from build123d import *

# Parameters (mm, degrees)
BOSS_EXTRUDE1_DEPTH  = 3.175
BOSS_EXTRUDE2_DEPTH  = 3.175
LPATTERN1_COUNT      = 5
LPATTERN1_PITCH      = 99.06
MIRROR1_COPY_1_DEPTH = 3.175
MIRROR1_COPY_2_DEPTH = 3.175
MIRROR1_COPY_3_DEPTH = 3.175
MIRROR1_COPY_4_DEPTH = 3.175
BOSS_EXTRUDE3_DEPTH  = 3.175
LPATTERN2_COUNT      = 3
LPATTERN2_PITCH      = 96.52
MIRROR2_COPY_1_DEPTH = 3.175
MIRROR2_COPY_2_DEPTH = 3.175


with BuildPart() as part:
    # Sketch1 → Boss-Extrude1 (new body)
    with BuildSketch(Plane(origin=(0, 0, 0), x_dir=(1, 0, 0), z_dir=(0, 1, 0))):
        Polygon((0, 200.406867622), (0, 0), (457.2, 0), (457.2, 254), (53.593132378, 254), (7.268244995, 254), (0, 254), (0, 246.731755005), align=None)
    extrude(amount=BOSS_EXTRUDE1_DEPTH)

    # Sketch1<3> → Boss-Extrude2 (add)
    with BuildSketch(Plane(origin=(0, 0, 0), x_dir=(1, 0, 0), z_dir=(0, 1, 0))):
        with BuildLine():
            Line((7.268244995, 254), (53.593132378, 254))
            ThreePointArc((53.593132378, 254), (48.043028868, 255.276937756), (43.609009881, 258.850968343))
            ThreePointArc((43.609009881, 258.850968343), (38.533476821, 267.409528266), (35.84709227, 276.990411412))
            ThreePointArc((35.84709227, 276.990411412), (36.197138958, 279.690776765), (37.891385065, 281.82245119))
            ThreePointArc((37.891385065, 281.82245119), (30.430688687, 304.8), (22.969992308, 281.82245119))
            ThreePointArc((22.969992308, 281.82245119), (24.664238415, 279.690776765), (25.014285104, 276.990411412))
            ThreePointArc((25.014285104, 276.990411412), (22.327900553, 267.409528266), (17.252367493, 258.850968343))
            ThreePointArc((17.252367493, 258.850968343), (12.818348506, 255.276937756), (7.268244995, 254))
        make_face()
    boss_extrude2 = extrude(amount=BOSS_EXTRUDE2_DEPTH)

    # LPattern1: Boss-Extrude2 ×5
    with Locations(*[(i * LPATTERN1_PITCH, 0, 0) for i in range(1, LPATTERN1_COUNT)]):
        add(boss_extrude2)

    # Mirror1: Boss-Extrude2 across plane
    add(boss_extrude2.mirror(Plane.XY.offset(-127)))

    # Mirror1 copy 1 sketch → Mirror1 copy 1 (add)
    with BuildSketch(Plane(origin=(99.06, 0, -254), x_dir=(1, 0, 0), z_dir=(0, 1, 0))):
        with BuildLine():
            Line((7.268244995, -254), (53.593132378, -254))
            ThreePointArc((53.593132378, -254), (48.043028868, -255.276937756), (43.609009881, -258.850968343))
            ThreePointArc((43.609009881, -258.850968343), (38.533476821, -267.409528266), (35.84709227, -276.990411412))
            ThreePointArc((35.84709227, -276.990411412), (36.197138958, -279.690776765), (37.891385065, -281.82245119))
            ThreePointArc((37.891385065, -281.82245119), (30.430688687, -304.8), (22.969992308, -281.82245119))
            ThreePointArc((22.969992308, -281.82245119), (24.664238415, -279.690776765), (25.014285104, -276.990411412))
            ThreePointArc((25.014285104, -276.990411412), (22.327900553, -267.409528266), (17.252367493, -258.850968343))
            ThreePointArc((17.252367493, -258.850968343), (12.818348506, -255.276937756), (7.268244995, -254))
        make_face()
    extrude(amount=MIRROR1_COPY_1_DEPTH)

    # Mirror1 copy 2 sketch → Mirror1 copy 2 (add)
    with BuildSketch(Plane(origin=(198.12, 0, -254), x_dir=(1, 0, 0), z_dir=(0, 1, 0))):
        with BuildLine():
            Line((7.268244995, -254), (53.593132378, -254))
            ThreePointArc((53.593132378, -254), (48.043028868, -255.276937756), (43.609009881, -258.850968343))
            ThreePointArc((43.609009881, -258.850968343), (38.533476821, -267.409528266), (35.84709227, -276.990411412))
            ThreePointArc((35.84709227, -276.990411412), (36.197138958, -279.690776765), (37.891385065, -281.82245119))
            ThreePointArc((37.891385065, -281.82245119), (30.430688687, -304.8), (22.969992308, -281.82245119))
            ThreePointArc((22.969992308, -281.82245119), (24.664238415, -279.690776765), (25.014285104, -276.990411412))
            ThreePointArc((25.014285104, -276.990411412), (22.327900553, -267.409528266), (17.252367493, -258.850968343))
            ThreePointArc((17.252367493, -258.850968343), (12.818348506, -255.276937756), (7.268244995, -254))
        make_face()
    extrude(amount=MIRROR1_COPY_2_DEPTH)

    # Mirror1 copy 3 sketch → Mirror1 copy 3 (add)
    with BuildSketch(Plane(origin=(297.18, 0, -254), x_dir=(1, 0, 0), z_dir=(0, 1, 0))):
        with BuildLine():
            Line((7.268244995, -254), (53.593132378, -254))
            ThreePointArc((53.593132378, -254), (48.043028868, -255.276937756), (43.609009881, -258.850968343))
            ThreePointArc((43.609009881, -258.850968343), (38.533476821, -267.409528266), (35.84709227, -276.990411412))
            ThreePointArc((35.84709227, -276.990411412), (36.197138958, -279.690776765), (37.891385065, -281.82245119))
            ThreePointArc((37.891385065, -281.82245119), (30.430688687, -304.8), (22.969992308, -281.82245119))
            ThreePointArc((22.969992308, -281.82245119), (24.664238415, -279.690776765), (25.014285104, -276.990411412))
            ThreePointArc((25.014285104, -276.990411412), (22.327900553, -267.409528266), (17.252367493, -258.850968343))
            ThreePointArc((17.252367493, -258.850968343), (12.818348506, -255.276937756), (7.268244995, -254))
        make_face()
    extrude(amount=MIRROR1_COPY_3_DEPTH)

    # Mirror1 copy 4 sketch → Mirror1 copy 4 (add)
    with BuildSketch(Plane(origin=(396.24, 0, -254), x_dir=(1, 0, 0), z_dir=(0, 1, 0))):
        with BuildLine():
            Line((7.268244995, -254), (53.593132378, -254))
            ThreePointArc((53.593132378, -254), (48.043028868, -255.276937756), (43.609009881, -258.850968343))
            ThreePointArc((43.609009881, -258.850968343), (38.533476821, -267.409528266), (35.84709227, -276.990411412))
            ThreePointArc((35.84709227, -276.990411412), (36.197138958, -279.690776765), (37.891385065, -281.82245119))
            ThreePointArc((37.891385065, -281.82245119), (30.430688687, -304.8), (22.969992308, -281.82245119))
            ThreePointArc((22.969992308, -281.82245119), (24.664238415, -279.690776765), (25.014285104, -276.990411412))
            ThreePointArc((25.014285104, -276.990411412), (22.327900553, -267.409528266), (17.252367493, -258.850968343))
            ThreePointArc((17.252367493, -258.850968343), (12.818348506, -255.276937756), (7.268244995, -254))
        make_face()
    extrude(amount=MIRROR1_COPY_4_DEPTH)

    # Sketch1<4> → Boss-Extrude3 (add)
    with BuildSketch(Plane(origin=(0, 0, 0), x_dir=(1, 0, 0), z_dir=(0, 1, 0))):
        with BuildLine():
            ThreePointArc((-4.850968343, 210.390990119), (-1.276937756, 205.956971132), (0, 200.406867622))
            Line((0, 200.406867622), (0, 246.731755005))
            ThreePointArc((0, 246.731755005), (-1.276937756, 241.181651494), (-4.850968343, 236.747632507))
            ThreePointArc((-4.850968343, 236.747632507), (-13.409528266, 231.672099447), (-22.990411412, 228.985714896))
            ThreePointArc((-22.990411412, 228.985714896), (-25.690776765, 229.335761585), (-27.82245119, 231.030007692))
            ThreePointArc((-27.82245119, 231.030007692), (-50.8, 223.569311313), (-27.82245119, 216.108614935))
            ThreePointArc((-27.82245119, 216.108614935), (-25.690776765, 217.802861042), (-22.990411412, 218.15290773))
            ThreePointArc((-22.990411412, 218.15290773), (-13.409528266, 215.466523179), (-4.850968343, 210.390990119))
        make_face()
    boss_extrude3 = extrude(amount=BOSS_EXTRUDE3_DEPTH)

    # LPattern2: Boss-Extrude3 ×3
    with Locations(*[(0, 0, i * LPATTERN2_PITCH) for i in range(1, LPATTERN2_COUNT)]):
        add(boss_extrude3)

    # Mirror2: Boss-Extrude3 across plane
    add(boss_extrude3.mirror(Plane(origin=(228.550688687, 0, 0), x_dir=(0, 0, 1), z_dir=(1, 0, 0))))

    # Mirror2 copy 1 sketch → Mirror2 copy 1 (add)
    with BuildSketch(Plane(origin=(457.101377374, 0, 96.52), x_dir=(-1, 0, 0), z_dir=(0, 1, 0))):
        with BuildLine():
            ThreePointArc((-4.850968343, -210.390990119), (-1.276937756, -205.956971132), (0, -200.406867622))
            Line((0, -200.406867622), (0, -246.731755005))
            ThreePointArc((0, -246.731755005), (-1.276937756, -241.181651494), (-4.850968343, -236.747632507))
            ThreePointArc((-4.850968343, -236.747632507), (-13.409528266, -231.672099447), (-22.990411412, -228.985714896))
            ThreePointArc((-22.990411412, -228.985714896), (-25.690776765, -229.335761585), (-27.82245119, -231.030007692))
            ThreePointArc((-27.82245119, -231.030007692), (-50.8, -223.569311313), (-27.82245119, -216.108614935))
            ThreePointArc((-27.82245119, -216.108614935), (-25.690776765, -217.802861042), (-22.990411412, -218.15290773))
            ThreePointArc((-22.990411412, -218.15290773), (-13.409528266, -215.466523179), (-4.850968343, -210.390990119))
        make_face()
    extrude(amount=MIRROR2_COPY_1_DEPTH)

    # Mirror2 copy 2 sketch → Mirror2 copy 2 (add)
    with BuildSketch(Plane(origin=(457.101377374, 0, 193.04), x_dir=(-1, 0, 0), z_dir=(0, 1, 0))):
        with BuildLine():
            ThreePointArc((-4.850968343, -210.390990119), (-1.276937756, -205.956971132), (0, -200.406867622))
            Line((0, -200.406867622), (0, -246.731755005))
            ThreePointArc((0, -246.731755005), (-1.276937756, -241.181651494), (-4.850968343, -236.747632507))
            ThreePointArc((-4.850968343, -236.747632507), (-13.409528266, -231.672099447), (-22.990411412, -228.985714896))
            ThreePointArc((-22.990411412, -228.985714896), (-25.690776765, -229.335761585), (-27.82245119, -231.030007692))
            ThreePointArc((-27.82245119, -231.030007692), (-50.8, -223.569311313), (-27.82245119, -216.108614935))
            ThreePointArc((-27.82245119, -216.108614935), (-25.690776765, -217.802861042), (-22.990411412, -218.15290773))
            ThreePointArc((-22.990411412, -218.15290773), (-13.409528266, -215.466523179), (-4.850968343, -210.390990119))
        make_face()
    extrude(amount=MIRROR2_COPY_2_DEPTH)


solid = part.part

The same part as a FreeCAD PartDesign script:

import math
import FreeCAD as App
import Part
import Sketcher

V = App.Vector
Q = App.Units.Quantity

doc = App.newDocument("Part")
body = doc.addObject("PartDesign::Body", "Body")

sketch1 = doc.addObject("Sketcher::SketchObject", "Sketch")
body.addObject(sketch1)
sketch1.AttachmentSupport = (doc.XZ_Plane, [""])
sketch1.MapMode = "FlatFace"
sketch1.addGeometry([
    Part.LineSegment(V(0, 0, 0), V(457, 0, 0)),
    Part.LineSegment(V(457, 0, 0), V(457, -254, 0)),
    Part.LineSegment(V(457, -254, 0), V(0, -254, 0)),
    Part.LineSegment(V(0, -254, 0), V(0, 0, 0)),
], False)
sketch1.addConstraint([
    Sketcher.Constraint("Coincident", 0, 2, 1, 1),
    Sketcher.Constraint("Coincident", 1, 2, 2, 1),
    Sketcher.Constraint("Coincident", 2, 2, 3, 1),
    Sketcher.Constraint("Coincident", 3, 2, 0, 1),
    Sketcher.Constraint("Horizontal", 0),
    Sketcher.Constraint("Vertical", 1),
    Sketcher.Constraint("Horizontal", 2),
    Sketcher.Constraint("Vertical", 3),
    Sketcher.Constraint("Coincident", 3, 2, -1, 1),
    Sketcher.Constraint("DistanceX", 0, 1, 0, 2, Q("18 in")),
    Sketcher.Constraint("DistanceY", 1, 2, 1, 1, Q("10 in")),
])
pad1 = doc.addObject("PartDesign::Pad", "Pad")
body.addObject(pad1)
pad1.Profile = sketch1
pad1.Length = Q("0.125 in")
pad1.Reversed = True

sketch2 = doc.addObject("Sketcher::SketchObject", "Sketch001")
body.addObject(sketch2)
sketch2.AttachmentSupport = (doc.XZ_Plane, [""])
sketch2.MapMode = "FlatFace"
sketch2.addGeometry([
    Part.LineSegment(V(7, -254, 0), V(54, -254, 0)),
    Part.ArcOfCircle(Part.Circle(V(54, -267, 0), V(0, 0, 1), 13), math.radians(90), math.radians(142)),
    Part.ArcOfCircle(Part.Circle(V(74, -282, 0), V(0, 0, 1), 38), math.radians(142), math.radians(172)),
    Part.ArcOfCircle(Part.Circle(V(41, -278, 0), V(0, 0, 1), 5), math.radians(172), math.radians(234)),
    Part.ArcOfCircle(Part.Circle(V(30, -292, 0), V(0, 0, 1), 13), math.radians(126), math.radians(414)),
    Part.ArcOfCircle(Part.Circle(V(20, -278, 0), V(0, 0, 1), 5), math.radians(-54), math.radians(8)),
    Part.ArcOfCircle(Part.Circle(V(-13, -282, 0), V(0, 0, 1), 38), math.radians(8), math.radians(38)),
    Part.ArcOfCircle(Part.Circle(V(7, -267, 0), V(0, 0, 1), 13), math.radians(38), math.radians(90)),
], False)
sketch2.addConstraint([
    Sketcher.Constraint("Tangent", 0, 2, 1, 1),
    Sketcher.Constraint("Tangent", 1, 2, 2, 1),
    Sketcher.Constraint("Tangent", 2, 2, 3, 1),
    Sketcher.Constraint("Tangent", 3, 2, 4, 2),
    Sketcher.Constraint("Tangent", 4, 1, 5, 1),
    Sketcher.Constraint("Tangent", 5, 2, 6, 1),
    Sketcher.Constraint("Tangent", 6, 2, 7, 1),
    Sketcher.Constraint("Tangent", 7, 2, 0, 1),
    Sketcher.Constraint("Horizontal", 0),
    Sketcher.Constraint("Equal", 1, 4),
    Sketcher.Constraint("Equal", 3, 5),
    Sketcher.Constraint("Equal", 2, 6),
    Sketcher.Constraint("Equal", 4, 7),
    Sketcher.Constraint("Horizontal", 3, 3, 5, 3),
    Sketcher.Constraint("Horizontal", 2, 3, 6, 3),
    Sketcher.Constraint("Radius", 1, Q("0.5 in")),
    Sketcher.Constraint("Radius", 2, Q("1.5 in")),
    Sketcher.Constraint("Radius", 3, Q("0.2 in")),
    Sketcher.Constraint("DistanceY", 0, 2, -1, 1, Q("10 in")),
    Sketcher.Constraint("DistanceY", 4, 3, 1, 3, Q("1 in")),
    Sketcher.Constraint("DistanceX", 6, 3, -1, 1, Q("0.5 in")),
    Sketcher.Constraint("DistanceX", 4, 1, 2, 2, 12.8771),
    Sketcher.Constraint("DistanceX", 0, 1, 0, 2, 46.324887),
])
pad2 = doc.addObject("PartDesign::Pad", "Pad001")
body.addObject(pad2)
pad2.Profile = sketch2
pad2.Length = Q("0.125 in")
pad2.Reversed = True
doc.recompute()

linearpattern = doc.addObject("PartDesign::LinearPattern", "LinearPattern")
body.addObject(linearpattern)
linearpattern.Originals = [pad2]
linearpattern.Direction = (doc.X_Axis, [""])
linearpattern.Mode = "offset"
linearpattern.Offset = Q("3.9 in")
linearpattern.Occurrences = 5
body.Tip = linearpattern
doc.recompute()

datumplane = doc.addObject("PartDesign::Plane", "DatumPlane")
body.addObject(datumplane)
datumplane.AttachmentSupport = (doc.XY_Plane, [""])
datumplane.MapMode = "FlatFace"
datumplane.AttachmentOffset = App.Placement(V(0, 0, -5 * 25.4), App.Rotation())
mirrored = doc.addObject("PartDesign::Mirrored", "Mirrored")
body.addObject(mirrored)
mirrored.Originals = [pad2]
mirrored.MirrorPlane = (datumplane, [""])
body.Tip = mirrored

sketch3 = doc.addObject("Sketcher::SketchObject", "Sketch002")
body.addObject(sketch3)
sketch3.AttachmentSupport = (doc.XZ_Plane, [""])
sketch3.MapMode = "FlatFace"
sketch3.addGeometry([
    Part.LineSegment(V(153, 0, 0), V(106, 0, 0)),
    Part.ArcOfCircle(Part.Circle(V(106, 13, 0), V(0, 0, 1), 13), math.radians(-90), math.radians(-38)),
    Part.ArcOfCircle(Part.Circle(V(86, 28, 0), V(0, 0, 1), 38), math.radians(-38), math.radians(-8)),
    Part.ArcOfCircle(Part.Circle(V(119, 24, 0), V(0, 0, 1), 5), math.radians(-8), math.radians(54)),
    Part.ArcOfCircle(Part.Circle(V(129, 38, 0), V(0, 0, 1), 13), math.radians(-54), math.radians(234)),
    Part.ArcOfCircle(Part.Circle(V(140, 24, 0), V(0, 0, 1), 5), math.radians(126), math.radians(188)),
    Part.ArcOfCircle(Part.Circle(V(173, 28, 0), V(0, 0, 1), 38), math.radians(-172), math.radians(-142)),
    Part.ArcOfCircle(Part.Circle(V(153, 13, 0), V(0, 0, 1), 13), math.radians(-142), math.radians(-90)),
], False)
sketch3.addConstraint([
    Sketcher.Constraint("Tangent", 0, 2, 1, 1),
    Sketcher.Constraint("Tangent", 1, 2, 2, 1),
    Sketcher.Constraint("Tangent", 2, 2, 3, 1),
    Sketcher.Constraint("Tangent", 3, 2, 4, 2),
    Sketcher.Constraint("Tangent", 4, 1, 5, 1),
    Sketcher.Constraint("Tangent", 5, 2, 6, 1),
    Sketcher.Constraint("Tangent", 6, 2, 7, 1),
    Sketcher.Constraint("Tangent", 7, 2, 0, 1),
    Sketcher.Constraint("Horizontal", 0),
    Sketcher.Constraint("Equal", 1, 4),
    Sketcher.Constraint("Equal", 3, 5),
    Sketcher.Constraint("Equal", 2, 6),
    Sketcher.Constraint("Equal", 4, 7),
    Sketcher.Constraint("PointOnObject", 0, 2, -1),
    Sketcher.Constraint("Horizontal", 3, 3, 5, 3),
    Sketcher.Constraint("Horizontal", 2, 3, 6, 3),
    Sketcher.Constraint("Radius", 1, Q("0.5 in")),
    Sketcher.Constraint("Radius", 2, Q("1.5 in")),
    Sketcher.Constraint("Radius", 3, Q("0.2 in")),
    Sketcher.Constraint("DistanceY", 1, 3, 4, 3, Q("1 in")),
    Sketcher.Constraint("DistanceX", -1, 1, 2, 3, Q("3.4 in")),
    Sketcher.Constraint("DistanceX", 2, 2, 4, 1, 12.8771),
    Sketcher.Constraint("DistanceX", 0, 2, 0, 1, 46.324887),
])
pad3 = doc.addObject("PartDesign::Pad", "Pad002")
body.addObject(pad3)
pad3.Profile = sketch3
pad3.Length = Q("0.125 in")
pad3.Reversed = True

sketch4 = doc.addObject("Sketcher::SketchObject", "Sketch003")
body.addObject(sketch4)
sketch4.AttachmentSupport = (doc.XZ_Plane, [""])
sketch4.MapMode = "FlatFace"
sketch4.addGeometry([
    Part.LineSegment(V(252, 0, 0), V(205, 0, 0)),
    Part.ArcOfCircle(Part.Circle(V(205, 13, 0), V(0, 0, 1), 13), math.radians(-90), math.radians(-38)),
    Part.ArcOfCircle(Part.Circle(V(185, 28, 0), V(0, 0, 1), 38), math.radians(-38), math.radians(-8)),
    Part.ArcOfCircle(Part.Circle(V(218, 24, 0), V(0, 0, 1), 5), math.radians(-8), math.radians(54)),
    Part.ArcOfCircle(Part.Circle(V(229, 38, 0), V(0, 0, 1), 13), math.radians(-54), math.radians(234)),
    Part.ArcOfCircle(Part.Circle(V(239, 24, 0), V(0, 0, 1), 5), math.radians(126), math.radians(188)),
    Part.ArcOfCircle(Part.Circle(V(272, 28, 0), V(0, 0, 1), 38), math.radians(-172), math.radians(-142)),
    Part.ArcOfCircle(Part.Circle(V(252, 13, 0), V(0, 0, 1), 13), math.radians(-142), math.radians(-90)),
], False)
sketch4.addConstraint([
    Sketcher.Constraint("Tangent", 0, 2, 1, 1),
    Sketcher.Constraint("Tangent", 1, 2, 2, 1),
    Sketcher.Constraint("Tangent", 2, 2, 3, 1),
    Sketcher.Constraint("Tangent", 3, 2, 4, 2),
    Sketcher.Constraint("Tangent", 4, 1, 5, 1),
    Sketcher.Constraint("Tangent", 5, 2, 6, 1),
    Sketcher.Constraint("Tangent", 6, 2, 7, 1),
    Sketcher.Constraint("Tangent", 7, 2, 0, 1),
    Sketcher.Constraint("Horizontal", 0),
    Sketcher.Constraint("Equal", 1, 4),
    Sketcher.Constraint("Equal", 3, 5),
    Sketcher.Constraint("Equal", 2, 6),
    Sketcher.Constraint("Equal", 4, 7),
    Sketcher.Constraint("PointOnObject", 0, 2, -1),
    Sketcher.Constraint("Horizontal", 3, 3, 5, 3),
    Sketcher.Constraint("Horizontal", 2, 3, 6, 3),
    Sketcher.Constraint("Radius", 1, Q("0.5 in")),
    Sketcher.Constraint("Radius", 2, Q("1.5 in")),
    Sketcher.Constraint("Radius", 3, Q("0.2 in")),
    Sketcher.Constraint("DistanceY", 1, 3, 4, 3, Q("1 in")),
    Sketcher.Constraint("DistanceX", -1, 1, 2, 3, Q("7.3 in")),
    Sketcher.Constraint("DistanceX", 2, 2, 4, 1, 12.8771),
    Sketcher.Constraint("DistanceX", 0, 2, 0, 1, 46.324887),
])
pad4 = doc.addObject("PartDesign::Pad", "Pad003")
body.addObject(pad4)
pad4.Profile = sketch4
pad4.Length = Q("0.125 in")
pad4.Reversed = True

sketch5 = doc.addObject("Sketcher::SketchObject", "Sketch004")
body.addObject(sketch5)
sketch5.AttachmentSupport = (doc.XZ_Plane, [""])
sketch5.MapMode = "FlatFace"
sketch5.addGeometry([
    Part.LineSegment(V(351, 0, 0), V(304, 0, 0)),
    Part.ArcOfCircle(Part.Circle(V(304, 13, 0), V(0, 0, 1), 13), math.radians(-90), math.radians(-38)),
    Part.ArcOfCircle(Part.Circle(V(284, 28, 0), V(0, 0, 1), 38), math.radians(-38), math.radians(-8)),
    Part.ArcOfCircle(Part.Circle(V(317, 24, 0), V(0, 0, 1), 5), math.radians(-8), math.radians(54)),
    Part.ArcOfCircle(Part.Circle(V(328, 38, 0), V(0, 0, 1), 13), math.radians(-54), math.radians(234)),
    Part.ArcOfCircle(Part.Circle(V(338, 24, 0), V(0, 0, 1), 5), math.radians(126), math.radians(188)),
    Part.ArcOfCircle(Part.Circle(V(371, 28, 0), V(0, 0, 1), 38), math.radians(-172), math.radians(-142)),
    Part.ArcOfCircle(Part.Circle(V(351, 13, 0), V(0, 0, 1), 13), math.radians(-142), math.radians(-90)),
], False)
sketch5.addConstraint([
    Sketcher.Constraint("Tangent", 0, 2, 1, 1),
    Sketcher.Constraint("Tangent", 1, 2, 2, 1),
    Sketcher.Constraint("Tangent", 2, 2, 3, 1),
    Sketcher.Constraint("Tangent", 3, 2, 4, 2),
    Sketcher.Constraint("Tangent", 4, 1, 5, 1),
    Sketcher.Constraint("Tangent", 5, 2, 6, 1),
    Sketcher.Constraint("Tangent", 6, 2, 7, 1),
    Sketcher.Constraint("Tangent", 7, 2, 0, 1),
    Sketcher.Constraint("Horizontal", 0),
    Sketcher.Constraint("Equal", 1, 4),
    Sketcher.Constraint("Equal", 3, 5),
    Sketcher.Constraint("Equal", 2, 6),
    Sketcher.Constraint("Equal", 4, 7),
    Sketcher.Constraint("PointOnObject", 0, 2, -1),
    Sketcher.Constraint("Horizontal", 3, 3, 5, 3),
    Sketcher.Constraint("Horizontal", 2, 3, 6, 3),
    Sketcher.Constraint("Radius", 1, Q("0.5 in")),
    Sketcher.Constraint("Radius", 2, Q("1.5 in")),
    Sketcher.Constraint("Radius", 3, Q("0.2 in")),
    Sketcher.Constraint("DistanceY", 1, 3, 4, 3, Q("1 in")),
    Sketcher.Constraint("DistanceX", -1, 1, 2, 3, Q("11.2 in")),
    Sketcher.Constraint("DistanceX", 2, 2, 4, 1, 12.8771),
    Sketcher.Constraint("DistanceX", 0, 2, 0, 1, 46.324887),
])
pad5 = doc.addObject("PartDesign::Pad", "Pad004")
body.addObject(pad5)
pad5.Profile = sketch5
pad5.Length = Q("0.125 in")
pad5.Reversed = True

sketch6 = doc.addObject("Sketcher::SketchObject", "Sketch005")
body.addObject(sketch6)
sketch6.AttachmentSupport = (doc.XZ_Plane, [""])
sketch6.MapMode = "FlatFace"
sketch6.addGeometry([
    Part.LineSegment(V(450, 0, 0), V(404, 0, 0)),
    Part.ArcOfCircle(Part.Circle(V(404, 13, 0), V(0, 0, 1), 13), math.radians(-90), math.radians(-38)),
    Part.ArcOfCircle(Part.Circle(V(384, 28, 0), V(0, 0, 1), 38), math.radians(-38), math.radians(-8)),
    Part.ArcOfCircle(Part.Circle(V(416, 24, 0), V(0, 0, 1), 5), math.radians(-8), math.radians(54)),
    Part.ArcOfCircle(Part.Circle(V(427, 38, 0), V(0, 0, 1), 13), math.radians(-54), math.radians(234)),
    Part.ArcOfCircle(Part.Circle(V(437, 24, 0), V(0, 0, 1), 5), math.radians(126), math.radians(188)),
    Part.ArcOfCircle(Part.Circle(V(470, 28, 0), V(0, 0, 1), 38), math.radians(-172), math.radians(-142)),
    Part.ArcOfCircle(Part.Circle(V(450, 13, 0), V(0, 0, 1), 13), math.radians(-142), math.radians(-90)),
], False)
sketch6.addConstraint([
    Sketcher.Constraint("Tangent", 0, 2, 1, 1),
    Sketcher.Constraint("Tangent", 1, 2, 2, 1),
    Sketcher.Constraint("Tangent", 2, 2, 3, 1),
    Sketcher.Constraint("Tangent", 3, 2, 4, 2),
    Sketcher.Constraint("Tangent", 4, 1, 5, 1),
    Sketcher.Constraint("Tangent", 5, 2, 6, 1),
    Sketcher.Constraint("Tangent", 6, 2, 7, 1),
    Sketcher.Constraint("Tangent", 7, 2, 0, 1),
    Sketcher.Constraint("Horizontal", 0),
    Sketcher.Constraint("Equal", 1, 4),
    Sketcher.Constraint("Equal", 3, 5),
    Sketcher.Constraint("Equal", 2, 6),
    Sketcher.Constraint("Equal", 4, 7),
    Sketcher.Constraint("PointOnObject", 0, 2, -1),
    Sketcher.Constraint("Horizontal", 3, 3, 5, 3),
    Sketcher.Constraint("Horizontal", 2, 3, 6, 3),
    Sketcher.Constraint("Radius", 1, Q("0.5 in")),
    Sketcher.Constraint("Radius", 2, Q("1.5 in")),
    Sketcher.Constraint("Radius", 3, Q("0.2 in")),
    Sketcher.Constraint("DistanceY", 1, 3, 4, 3, Q("1 in")),
    Sketcher.Constraint("DistanceX", -1, 1, 2, 3, Q("15.1 in")),
    Sketcher.Constraint("DistanceX", 2, 2, 4, 1, 12.8771),
    Sketcher.Constraint("DistanceX", 0, 2, 0, 1, 46.324887),
])
pad6 = doc.addObject("PartDesign::Pad", "Pad005")
body.addObject(pad6)
pad6.Profile = sketch6
pad6.Length = Q("0.125 in")
pad6.Reversed = True

sketch7 = doc.addObject("Sketcher::SketchObject", "Sketch006")
body.addObject(sketch7)
sketch7.AttachmentSupport = (doc.XZ_Plane, [""])
sketch7.MapMode = "FlatFace"
sketch7.addGeometry([
    Part.ArcOfCircle(Part.Circle(V(-13, -200, 0), V(0, 0, 1), 13), math.radians(-52), math.radians(0)),
    Part.LineSegment(V(0, -200, 0), V(0, -247, 0)),
    Part.ArcOfCircle(Part.Circle(V(-13, -247, 0), V(0, 0, 1), 13), math.radians(0), math.radians(52)),
    Part.ArcOfCircle(Part.Circle(V(-28, -267, 0), V(0, 0, 1), 38), math.radians(52), math.radians(82)),
    Part.ArcOfCircle(Part.Circle(V(-24, -234, 0), V(0, 0, 1), 5), math.radians(82), math.radians(144)),
    Part.ArcOfCircle(Part.Circle(V(-38, -224, 0), V(0, 0, 1), 13), math.radians(36), math.radians(324)),
    Part.ArcOfCircle(Part.Circle(V(-24, -213, 0), V(0, 0, 1), 5), math.radians(-144), math.radians(-82)),
    Part.ArcOfCircle(Part.Circle(V(-28, -180, 0), V(0, 0, 1), 38), math.radians(-82), math.radians(-52)),
], False)
sketch7.addConstraint([
    Sketcher.Constraint("Tangent", 0, 2, 1, 1),
    Sketcher.Constraint("Tangent", 1, 2, 2, 1),
    Sketcher.Constraint("Tangent", 2, 2, 3, 1),
    Sketcher.Constraint("Tangent", 3, 2, 4, 1),
    Sketcher.Constraint("Tangent", 4, 2, 5, 2),
    Sketcher.Constraint("Tangent", 5, 1, 6, 1),
    Sketcher.Constraint("Tangent", 6, 2, 7, 1),
    Sketcher.Constraint("Tangent", 7, 2, 0, 1),
    Sketcher.Constraint("Vertical", 1),
    Sketcher.Constraint("Equal", 0, 2),
    Sketcher.Constraint("Equal", 2, 5),
    Sketcher.Constraint("Equal", 4, 6),
    Sketcher.Constraint("Equal", 3, 7),
    Sketcher.Constraint("PointOnObject", 0, 2, -2),
    Sketcher.Constraint("Vertical", 4, 3, 6, 3),
    Sketcher.Constraint("Vertical", 3, 3, 7, 3),
    Sketcher.Constraint("Radius", 0, Q("0.5 in")),
    Sketcher.Constraint("Radius", 3, Q("1.5 in")),
    Sketcher.Constraint("Radius", 4, Q("0.2 in")),
    Sketcher.Constraint("DistanceX", 5, 3, 0, 3, Q("1 in")),
    Sketcher.Constraint("DistanceY", 3, 3, -1, 1, Q("10.5 in")),
    Sketcher.Constraint("DistanceY", 3, 2, 5, 1, 12.8771),
    Sketcher.Constraint("DistanceY", 1, 2, 1, 1, 46.324887),
])
pad7 = doc.addObject("PartDesign::Pad", "Pad006")
body.addObject(pad7)
pad7.Profile = sketch7
pad7.Length = Q("0.125 in")
pad7.Reversed = True
doc.recompute()

linearpattern2 = doc.addObject("PartDesign::LinearPattern", "LinearPattern001")
body.addObject(linearpattern2)
linearpattern2.Originals = [pad7]
linearpattern2.Direction = (doc.Z_Axis, [""])
linearpattern2.Mode = "offset"
linearpattern2.Offset = Q("3.8 in")
linearpattern2.Occurrences = 3
body.Tip = linearpattern2
doc.recompute()

datumplane2 = doc.addObject("PartDesign::Plane", "DatumPlane001")
body.addObject(datumplane2)
datumplane2.AttachmentSupport = (doc.YZ_Plane, [""])
datumplane2.MapMode = "FlatFace"
datumplane2.AttachmentOffset = App.Placement(V(0, 0, 228.550689), App.Rotation())
mirrored2 = doc.addObject("PartDesign::Mirrored", "Mirrored001")
body.addObject(mirrored2)
mirrored2.Originals = [pad7]
mirrored2.MirrorPlane = (datumplane2, [""])
body.Tip = mirrored2

sketch8 = doc.addObject("Sketcher::SketchObject", "Sketch007")
body.addObject(sketch8)
sketch8.AttachmentSupport = (doc.XZ_Plane, [""])
sketch8.MapMode = "FlatFace"
sketch8.addGeometry([
    Part.ArcOfCircle(Part.Circle(V(470, -104, 0), V(0, 0, 1), 13), math.radians(180), math.radians(232)),
    Part.ArcOfCircle(Part.Circle(V(485, -84, 0), V(0, 0, 1), 38), math.radians(-128), math.radians(-98)),
    Part.ArcOfCircle(Part.Circle(V(481, -117, 0), V(0, 0, 1), 5), math.radians(-98), math.radians(-36)),
    Part.ArcOfCircle(Part.Circle(V(495, -127, 0), V(0, 0, 1), 13), math.radians(-144), math.radians(144)),
    Part.ArcOfCircle(Part.Circle(V(481, -137, 0), V(0, 0, 1), 5), math.radians(36), math.radians(98)),
    Part.ArcOfCircle(Part.Circle(V(485, -170, 0), V(0, 0, 1), 38), math.radians(98), math.radians(128)),
    Part.ArcOfCircle(Part.Circle(V(470, -150, 0), V(0, 0, 1), 13), math.radians(128), math.radians(180)),
    Part.LineSegment(V(457, -150, 0), V(457, -104, 0)),
], False)
sketch8.addConstraint([
    Sketcher.Constraint("Tangent", 0, 2, 1, 1),
    Sketcher.Constraint("Tangent", 1, 2, 2, 1),
    Sketcher.Constraint("Tangent", 2, 2, 3, 2),
    Sketcher.Constraint("Tangent", 3, 1, 4, 1),
    Sketcher.Constraint("Tangent", 4, 2, 5, 1),
    Sketcher.Constraint("Tangent", 5, 2, 6, 1),
    Sketcher.Constraint("Tangent", 6, 2, 7, 1),
    Sketcher.Constraint("Tangent", 7, 2, 0, 1),
    Sketcher.Constraint("Vertical", 7),
    Sketcher.Constraint("Equal", 0, 3),
    Sketcher.Constraint("Equal", 2, 4),
    Sketcher.Constraint("Equal", 1, 5),
    Sketcher.Constraint("Equal", 3, 6),
    Sketcher.Constraint("Vertical", 2, 3, 4, 3),
    Sketcher.Constraint("Vertical", 1, 3, 5, 3),
    Sketcher.Constraint("Radius", 0, Q("0.5 in")),
    Sketcher.Constraint("Radius", 1, Q("1.5 in")),
    Sketcher.Constraint("Radius", 2, Q("0.2 in")),
    Sketcher.Constraint("DistanceX", 0, 3, 3, 3, Q("1 in")),
    Sketcher.Constraint("DistanceY", 5, 3, -1, 1, Q("6.7 in")),
    Sketcher.Constraint("DistanceY", 3, 1, 1, 2, 12.8771),
    Sketcher.Constraint("DistanceY", 7, 1, 7, 2, 46.324887),
    Sketcher.Constraint("DistanceX", -1, 1, 1, 3, 485.499441),
])
pad8 = doc.addObject("PartDesign::Pad", "Pad007")
body.addObject(pad8)
pad8.Profile = sketch8
pad8.Length = Q("0.125 in")
pad8.Reversed = True

sketch9 = doc.addObject("Sketcher::SketchObject", "Sketch008")
body.addObject(sketch9)
sketch9.AttachmentSupport = (doc.XZ_Plane, [""])
sketch9.MapMode = "FlatFace"
sketch9.addGeometry([
    Part.ArcOfCircle(Part.Circle(V(470, -7, 0), V(0, 0, 1), 13), math.radians(180), math.radians(232)),
    Part.ArcOfCircle(Part.Circle(V(485, 13, 0), V(0, 0, 1), 38), math.radians(-128), math.radians(-98)),
    Part.ArcOfCircle(Part.Circle(V(481, -20, 0), V(0, 0, 1), 5), math.radians(-98), math.radians(-36)),
    Part.ArcOfCircle(Part.Circle(V(495, -31, 0), V(0, 0, 1), 13), math.radians(-144), math.radians(144)),
    Part.ArcOfCircle(Part.Circle(V(481, -41, 0), V(0, 0, 1), 5), math.radians(36), math.radians(98)),
    Part.ArcOfCircle(Part.Circle(V(485, -74, 0), V(0, 0, 1), 38), math.radians(98), math.radians(128)),
    Part.ArcOfCircle(Part.Circle(V(470, -54, 0), V(0, 0, 1), 13), math.radians(128), math.radians(180)),
    Part.LineSegment(V(457, -54, 0), V(457, -7, 0)),
], False)
sketch9.addConstraint([
    Sketcher.Constraint("Tangent", 0, 2, 1, 1),
    Sketcher.Constraint("Tangent", 1, 2, 2, 1),
    Sketcher.Constraint("Tangent", 2, 2, 3, 2),
    Sketcher.Constraint("Tangent", 3, 1, 4, 1),
    Sketcher.Constraint("Tangent", 4, 2, 5, 1),
    Sketcher.Constraint("Tangent", 5, 2, 6, 1),
    Sketcher.Constraint("Tangent", 6, 2, 7, 1),
    Sketcher.Constraint("Tangent", 7, 2, 0, 1),
    Sketcher.Constraint("Vertical", 7),
    Sketcher.Constraint("Equal", 0, 3),
    Sketcher.Constraint("Equal", 2, 4),
    Sketcher.Constraint("Equal", 1, 5),
    Sketcher.Constraint("Equal", 3, 6),
    Sketcher.Constraint("Vertical", 2, 3, 4, 3),
    Sketcher.Constraint("Vertical", 1, 3, 5, 3),
    Sketcher.Constraint("Radius", 0, Q("0.5 in")),
    Sketcher.Constraint("Radius", 1, Q("1.5 in")),
    Sketcher.Constraint("Radius", 2, Q("0.2 in")),
    Sketcher.Constraint("DistanceX", 0, 3, 3, 3, Q("1 in")),
    Sketcher.Constraint("DistanceY", 5, 3, -1, 1, Q("2.9 in")),
    Sketcher.Constraint("DistanceY", 3, 1, 1, 2, 12.8771),
    Sketcher.Constraint("DistanceY", 7, 1, 7, 2, 46.324887),
    Sketcher.Constraint("DistanceX", -1, 1, 1, 3, 485.499441),
])
pad9 = doc.addObject("PartDesign::Pad", "Pad008")
body.addObject(pad9)
pad9.Profile = sketch9
pad9.Length = Q("0.125 in")
pad9.Reversed = True

doc.recompute()
